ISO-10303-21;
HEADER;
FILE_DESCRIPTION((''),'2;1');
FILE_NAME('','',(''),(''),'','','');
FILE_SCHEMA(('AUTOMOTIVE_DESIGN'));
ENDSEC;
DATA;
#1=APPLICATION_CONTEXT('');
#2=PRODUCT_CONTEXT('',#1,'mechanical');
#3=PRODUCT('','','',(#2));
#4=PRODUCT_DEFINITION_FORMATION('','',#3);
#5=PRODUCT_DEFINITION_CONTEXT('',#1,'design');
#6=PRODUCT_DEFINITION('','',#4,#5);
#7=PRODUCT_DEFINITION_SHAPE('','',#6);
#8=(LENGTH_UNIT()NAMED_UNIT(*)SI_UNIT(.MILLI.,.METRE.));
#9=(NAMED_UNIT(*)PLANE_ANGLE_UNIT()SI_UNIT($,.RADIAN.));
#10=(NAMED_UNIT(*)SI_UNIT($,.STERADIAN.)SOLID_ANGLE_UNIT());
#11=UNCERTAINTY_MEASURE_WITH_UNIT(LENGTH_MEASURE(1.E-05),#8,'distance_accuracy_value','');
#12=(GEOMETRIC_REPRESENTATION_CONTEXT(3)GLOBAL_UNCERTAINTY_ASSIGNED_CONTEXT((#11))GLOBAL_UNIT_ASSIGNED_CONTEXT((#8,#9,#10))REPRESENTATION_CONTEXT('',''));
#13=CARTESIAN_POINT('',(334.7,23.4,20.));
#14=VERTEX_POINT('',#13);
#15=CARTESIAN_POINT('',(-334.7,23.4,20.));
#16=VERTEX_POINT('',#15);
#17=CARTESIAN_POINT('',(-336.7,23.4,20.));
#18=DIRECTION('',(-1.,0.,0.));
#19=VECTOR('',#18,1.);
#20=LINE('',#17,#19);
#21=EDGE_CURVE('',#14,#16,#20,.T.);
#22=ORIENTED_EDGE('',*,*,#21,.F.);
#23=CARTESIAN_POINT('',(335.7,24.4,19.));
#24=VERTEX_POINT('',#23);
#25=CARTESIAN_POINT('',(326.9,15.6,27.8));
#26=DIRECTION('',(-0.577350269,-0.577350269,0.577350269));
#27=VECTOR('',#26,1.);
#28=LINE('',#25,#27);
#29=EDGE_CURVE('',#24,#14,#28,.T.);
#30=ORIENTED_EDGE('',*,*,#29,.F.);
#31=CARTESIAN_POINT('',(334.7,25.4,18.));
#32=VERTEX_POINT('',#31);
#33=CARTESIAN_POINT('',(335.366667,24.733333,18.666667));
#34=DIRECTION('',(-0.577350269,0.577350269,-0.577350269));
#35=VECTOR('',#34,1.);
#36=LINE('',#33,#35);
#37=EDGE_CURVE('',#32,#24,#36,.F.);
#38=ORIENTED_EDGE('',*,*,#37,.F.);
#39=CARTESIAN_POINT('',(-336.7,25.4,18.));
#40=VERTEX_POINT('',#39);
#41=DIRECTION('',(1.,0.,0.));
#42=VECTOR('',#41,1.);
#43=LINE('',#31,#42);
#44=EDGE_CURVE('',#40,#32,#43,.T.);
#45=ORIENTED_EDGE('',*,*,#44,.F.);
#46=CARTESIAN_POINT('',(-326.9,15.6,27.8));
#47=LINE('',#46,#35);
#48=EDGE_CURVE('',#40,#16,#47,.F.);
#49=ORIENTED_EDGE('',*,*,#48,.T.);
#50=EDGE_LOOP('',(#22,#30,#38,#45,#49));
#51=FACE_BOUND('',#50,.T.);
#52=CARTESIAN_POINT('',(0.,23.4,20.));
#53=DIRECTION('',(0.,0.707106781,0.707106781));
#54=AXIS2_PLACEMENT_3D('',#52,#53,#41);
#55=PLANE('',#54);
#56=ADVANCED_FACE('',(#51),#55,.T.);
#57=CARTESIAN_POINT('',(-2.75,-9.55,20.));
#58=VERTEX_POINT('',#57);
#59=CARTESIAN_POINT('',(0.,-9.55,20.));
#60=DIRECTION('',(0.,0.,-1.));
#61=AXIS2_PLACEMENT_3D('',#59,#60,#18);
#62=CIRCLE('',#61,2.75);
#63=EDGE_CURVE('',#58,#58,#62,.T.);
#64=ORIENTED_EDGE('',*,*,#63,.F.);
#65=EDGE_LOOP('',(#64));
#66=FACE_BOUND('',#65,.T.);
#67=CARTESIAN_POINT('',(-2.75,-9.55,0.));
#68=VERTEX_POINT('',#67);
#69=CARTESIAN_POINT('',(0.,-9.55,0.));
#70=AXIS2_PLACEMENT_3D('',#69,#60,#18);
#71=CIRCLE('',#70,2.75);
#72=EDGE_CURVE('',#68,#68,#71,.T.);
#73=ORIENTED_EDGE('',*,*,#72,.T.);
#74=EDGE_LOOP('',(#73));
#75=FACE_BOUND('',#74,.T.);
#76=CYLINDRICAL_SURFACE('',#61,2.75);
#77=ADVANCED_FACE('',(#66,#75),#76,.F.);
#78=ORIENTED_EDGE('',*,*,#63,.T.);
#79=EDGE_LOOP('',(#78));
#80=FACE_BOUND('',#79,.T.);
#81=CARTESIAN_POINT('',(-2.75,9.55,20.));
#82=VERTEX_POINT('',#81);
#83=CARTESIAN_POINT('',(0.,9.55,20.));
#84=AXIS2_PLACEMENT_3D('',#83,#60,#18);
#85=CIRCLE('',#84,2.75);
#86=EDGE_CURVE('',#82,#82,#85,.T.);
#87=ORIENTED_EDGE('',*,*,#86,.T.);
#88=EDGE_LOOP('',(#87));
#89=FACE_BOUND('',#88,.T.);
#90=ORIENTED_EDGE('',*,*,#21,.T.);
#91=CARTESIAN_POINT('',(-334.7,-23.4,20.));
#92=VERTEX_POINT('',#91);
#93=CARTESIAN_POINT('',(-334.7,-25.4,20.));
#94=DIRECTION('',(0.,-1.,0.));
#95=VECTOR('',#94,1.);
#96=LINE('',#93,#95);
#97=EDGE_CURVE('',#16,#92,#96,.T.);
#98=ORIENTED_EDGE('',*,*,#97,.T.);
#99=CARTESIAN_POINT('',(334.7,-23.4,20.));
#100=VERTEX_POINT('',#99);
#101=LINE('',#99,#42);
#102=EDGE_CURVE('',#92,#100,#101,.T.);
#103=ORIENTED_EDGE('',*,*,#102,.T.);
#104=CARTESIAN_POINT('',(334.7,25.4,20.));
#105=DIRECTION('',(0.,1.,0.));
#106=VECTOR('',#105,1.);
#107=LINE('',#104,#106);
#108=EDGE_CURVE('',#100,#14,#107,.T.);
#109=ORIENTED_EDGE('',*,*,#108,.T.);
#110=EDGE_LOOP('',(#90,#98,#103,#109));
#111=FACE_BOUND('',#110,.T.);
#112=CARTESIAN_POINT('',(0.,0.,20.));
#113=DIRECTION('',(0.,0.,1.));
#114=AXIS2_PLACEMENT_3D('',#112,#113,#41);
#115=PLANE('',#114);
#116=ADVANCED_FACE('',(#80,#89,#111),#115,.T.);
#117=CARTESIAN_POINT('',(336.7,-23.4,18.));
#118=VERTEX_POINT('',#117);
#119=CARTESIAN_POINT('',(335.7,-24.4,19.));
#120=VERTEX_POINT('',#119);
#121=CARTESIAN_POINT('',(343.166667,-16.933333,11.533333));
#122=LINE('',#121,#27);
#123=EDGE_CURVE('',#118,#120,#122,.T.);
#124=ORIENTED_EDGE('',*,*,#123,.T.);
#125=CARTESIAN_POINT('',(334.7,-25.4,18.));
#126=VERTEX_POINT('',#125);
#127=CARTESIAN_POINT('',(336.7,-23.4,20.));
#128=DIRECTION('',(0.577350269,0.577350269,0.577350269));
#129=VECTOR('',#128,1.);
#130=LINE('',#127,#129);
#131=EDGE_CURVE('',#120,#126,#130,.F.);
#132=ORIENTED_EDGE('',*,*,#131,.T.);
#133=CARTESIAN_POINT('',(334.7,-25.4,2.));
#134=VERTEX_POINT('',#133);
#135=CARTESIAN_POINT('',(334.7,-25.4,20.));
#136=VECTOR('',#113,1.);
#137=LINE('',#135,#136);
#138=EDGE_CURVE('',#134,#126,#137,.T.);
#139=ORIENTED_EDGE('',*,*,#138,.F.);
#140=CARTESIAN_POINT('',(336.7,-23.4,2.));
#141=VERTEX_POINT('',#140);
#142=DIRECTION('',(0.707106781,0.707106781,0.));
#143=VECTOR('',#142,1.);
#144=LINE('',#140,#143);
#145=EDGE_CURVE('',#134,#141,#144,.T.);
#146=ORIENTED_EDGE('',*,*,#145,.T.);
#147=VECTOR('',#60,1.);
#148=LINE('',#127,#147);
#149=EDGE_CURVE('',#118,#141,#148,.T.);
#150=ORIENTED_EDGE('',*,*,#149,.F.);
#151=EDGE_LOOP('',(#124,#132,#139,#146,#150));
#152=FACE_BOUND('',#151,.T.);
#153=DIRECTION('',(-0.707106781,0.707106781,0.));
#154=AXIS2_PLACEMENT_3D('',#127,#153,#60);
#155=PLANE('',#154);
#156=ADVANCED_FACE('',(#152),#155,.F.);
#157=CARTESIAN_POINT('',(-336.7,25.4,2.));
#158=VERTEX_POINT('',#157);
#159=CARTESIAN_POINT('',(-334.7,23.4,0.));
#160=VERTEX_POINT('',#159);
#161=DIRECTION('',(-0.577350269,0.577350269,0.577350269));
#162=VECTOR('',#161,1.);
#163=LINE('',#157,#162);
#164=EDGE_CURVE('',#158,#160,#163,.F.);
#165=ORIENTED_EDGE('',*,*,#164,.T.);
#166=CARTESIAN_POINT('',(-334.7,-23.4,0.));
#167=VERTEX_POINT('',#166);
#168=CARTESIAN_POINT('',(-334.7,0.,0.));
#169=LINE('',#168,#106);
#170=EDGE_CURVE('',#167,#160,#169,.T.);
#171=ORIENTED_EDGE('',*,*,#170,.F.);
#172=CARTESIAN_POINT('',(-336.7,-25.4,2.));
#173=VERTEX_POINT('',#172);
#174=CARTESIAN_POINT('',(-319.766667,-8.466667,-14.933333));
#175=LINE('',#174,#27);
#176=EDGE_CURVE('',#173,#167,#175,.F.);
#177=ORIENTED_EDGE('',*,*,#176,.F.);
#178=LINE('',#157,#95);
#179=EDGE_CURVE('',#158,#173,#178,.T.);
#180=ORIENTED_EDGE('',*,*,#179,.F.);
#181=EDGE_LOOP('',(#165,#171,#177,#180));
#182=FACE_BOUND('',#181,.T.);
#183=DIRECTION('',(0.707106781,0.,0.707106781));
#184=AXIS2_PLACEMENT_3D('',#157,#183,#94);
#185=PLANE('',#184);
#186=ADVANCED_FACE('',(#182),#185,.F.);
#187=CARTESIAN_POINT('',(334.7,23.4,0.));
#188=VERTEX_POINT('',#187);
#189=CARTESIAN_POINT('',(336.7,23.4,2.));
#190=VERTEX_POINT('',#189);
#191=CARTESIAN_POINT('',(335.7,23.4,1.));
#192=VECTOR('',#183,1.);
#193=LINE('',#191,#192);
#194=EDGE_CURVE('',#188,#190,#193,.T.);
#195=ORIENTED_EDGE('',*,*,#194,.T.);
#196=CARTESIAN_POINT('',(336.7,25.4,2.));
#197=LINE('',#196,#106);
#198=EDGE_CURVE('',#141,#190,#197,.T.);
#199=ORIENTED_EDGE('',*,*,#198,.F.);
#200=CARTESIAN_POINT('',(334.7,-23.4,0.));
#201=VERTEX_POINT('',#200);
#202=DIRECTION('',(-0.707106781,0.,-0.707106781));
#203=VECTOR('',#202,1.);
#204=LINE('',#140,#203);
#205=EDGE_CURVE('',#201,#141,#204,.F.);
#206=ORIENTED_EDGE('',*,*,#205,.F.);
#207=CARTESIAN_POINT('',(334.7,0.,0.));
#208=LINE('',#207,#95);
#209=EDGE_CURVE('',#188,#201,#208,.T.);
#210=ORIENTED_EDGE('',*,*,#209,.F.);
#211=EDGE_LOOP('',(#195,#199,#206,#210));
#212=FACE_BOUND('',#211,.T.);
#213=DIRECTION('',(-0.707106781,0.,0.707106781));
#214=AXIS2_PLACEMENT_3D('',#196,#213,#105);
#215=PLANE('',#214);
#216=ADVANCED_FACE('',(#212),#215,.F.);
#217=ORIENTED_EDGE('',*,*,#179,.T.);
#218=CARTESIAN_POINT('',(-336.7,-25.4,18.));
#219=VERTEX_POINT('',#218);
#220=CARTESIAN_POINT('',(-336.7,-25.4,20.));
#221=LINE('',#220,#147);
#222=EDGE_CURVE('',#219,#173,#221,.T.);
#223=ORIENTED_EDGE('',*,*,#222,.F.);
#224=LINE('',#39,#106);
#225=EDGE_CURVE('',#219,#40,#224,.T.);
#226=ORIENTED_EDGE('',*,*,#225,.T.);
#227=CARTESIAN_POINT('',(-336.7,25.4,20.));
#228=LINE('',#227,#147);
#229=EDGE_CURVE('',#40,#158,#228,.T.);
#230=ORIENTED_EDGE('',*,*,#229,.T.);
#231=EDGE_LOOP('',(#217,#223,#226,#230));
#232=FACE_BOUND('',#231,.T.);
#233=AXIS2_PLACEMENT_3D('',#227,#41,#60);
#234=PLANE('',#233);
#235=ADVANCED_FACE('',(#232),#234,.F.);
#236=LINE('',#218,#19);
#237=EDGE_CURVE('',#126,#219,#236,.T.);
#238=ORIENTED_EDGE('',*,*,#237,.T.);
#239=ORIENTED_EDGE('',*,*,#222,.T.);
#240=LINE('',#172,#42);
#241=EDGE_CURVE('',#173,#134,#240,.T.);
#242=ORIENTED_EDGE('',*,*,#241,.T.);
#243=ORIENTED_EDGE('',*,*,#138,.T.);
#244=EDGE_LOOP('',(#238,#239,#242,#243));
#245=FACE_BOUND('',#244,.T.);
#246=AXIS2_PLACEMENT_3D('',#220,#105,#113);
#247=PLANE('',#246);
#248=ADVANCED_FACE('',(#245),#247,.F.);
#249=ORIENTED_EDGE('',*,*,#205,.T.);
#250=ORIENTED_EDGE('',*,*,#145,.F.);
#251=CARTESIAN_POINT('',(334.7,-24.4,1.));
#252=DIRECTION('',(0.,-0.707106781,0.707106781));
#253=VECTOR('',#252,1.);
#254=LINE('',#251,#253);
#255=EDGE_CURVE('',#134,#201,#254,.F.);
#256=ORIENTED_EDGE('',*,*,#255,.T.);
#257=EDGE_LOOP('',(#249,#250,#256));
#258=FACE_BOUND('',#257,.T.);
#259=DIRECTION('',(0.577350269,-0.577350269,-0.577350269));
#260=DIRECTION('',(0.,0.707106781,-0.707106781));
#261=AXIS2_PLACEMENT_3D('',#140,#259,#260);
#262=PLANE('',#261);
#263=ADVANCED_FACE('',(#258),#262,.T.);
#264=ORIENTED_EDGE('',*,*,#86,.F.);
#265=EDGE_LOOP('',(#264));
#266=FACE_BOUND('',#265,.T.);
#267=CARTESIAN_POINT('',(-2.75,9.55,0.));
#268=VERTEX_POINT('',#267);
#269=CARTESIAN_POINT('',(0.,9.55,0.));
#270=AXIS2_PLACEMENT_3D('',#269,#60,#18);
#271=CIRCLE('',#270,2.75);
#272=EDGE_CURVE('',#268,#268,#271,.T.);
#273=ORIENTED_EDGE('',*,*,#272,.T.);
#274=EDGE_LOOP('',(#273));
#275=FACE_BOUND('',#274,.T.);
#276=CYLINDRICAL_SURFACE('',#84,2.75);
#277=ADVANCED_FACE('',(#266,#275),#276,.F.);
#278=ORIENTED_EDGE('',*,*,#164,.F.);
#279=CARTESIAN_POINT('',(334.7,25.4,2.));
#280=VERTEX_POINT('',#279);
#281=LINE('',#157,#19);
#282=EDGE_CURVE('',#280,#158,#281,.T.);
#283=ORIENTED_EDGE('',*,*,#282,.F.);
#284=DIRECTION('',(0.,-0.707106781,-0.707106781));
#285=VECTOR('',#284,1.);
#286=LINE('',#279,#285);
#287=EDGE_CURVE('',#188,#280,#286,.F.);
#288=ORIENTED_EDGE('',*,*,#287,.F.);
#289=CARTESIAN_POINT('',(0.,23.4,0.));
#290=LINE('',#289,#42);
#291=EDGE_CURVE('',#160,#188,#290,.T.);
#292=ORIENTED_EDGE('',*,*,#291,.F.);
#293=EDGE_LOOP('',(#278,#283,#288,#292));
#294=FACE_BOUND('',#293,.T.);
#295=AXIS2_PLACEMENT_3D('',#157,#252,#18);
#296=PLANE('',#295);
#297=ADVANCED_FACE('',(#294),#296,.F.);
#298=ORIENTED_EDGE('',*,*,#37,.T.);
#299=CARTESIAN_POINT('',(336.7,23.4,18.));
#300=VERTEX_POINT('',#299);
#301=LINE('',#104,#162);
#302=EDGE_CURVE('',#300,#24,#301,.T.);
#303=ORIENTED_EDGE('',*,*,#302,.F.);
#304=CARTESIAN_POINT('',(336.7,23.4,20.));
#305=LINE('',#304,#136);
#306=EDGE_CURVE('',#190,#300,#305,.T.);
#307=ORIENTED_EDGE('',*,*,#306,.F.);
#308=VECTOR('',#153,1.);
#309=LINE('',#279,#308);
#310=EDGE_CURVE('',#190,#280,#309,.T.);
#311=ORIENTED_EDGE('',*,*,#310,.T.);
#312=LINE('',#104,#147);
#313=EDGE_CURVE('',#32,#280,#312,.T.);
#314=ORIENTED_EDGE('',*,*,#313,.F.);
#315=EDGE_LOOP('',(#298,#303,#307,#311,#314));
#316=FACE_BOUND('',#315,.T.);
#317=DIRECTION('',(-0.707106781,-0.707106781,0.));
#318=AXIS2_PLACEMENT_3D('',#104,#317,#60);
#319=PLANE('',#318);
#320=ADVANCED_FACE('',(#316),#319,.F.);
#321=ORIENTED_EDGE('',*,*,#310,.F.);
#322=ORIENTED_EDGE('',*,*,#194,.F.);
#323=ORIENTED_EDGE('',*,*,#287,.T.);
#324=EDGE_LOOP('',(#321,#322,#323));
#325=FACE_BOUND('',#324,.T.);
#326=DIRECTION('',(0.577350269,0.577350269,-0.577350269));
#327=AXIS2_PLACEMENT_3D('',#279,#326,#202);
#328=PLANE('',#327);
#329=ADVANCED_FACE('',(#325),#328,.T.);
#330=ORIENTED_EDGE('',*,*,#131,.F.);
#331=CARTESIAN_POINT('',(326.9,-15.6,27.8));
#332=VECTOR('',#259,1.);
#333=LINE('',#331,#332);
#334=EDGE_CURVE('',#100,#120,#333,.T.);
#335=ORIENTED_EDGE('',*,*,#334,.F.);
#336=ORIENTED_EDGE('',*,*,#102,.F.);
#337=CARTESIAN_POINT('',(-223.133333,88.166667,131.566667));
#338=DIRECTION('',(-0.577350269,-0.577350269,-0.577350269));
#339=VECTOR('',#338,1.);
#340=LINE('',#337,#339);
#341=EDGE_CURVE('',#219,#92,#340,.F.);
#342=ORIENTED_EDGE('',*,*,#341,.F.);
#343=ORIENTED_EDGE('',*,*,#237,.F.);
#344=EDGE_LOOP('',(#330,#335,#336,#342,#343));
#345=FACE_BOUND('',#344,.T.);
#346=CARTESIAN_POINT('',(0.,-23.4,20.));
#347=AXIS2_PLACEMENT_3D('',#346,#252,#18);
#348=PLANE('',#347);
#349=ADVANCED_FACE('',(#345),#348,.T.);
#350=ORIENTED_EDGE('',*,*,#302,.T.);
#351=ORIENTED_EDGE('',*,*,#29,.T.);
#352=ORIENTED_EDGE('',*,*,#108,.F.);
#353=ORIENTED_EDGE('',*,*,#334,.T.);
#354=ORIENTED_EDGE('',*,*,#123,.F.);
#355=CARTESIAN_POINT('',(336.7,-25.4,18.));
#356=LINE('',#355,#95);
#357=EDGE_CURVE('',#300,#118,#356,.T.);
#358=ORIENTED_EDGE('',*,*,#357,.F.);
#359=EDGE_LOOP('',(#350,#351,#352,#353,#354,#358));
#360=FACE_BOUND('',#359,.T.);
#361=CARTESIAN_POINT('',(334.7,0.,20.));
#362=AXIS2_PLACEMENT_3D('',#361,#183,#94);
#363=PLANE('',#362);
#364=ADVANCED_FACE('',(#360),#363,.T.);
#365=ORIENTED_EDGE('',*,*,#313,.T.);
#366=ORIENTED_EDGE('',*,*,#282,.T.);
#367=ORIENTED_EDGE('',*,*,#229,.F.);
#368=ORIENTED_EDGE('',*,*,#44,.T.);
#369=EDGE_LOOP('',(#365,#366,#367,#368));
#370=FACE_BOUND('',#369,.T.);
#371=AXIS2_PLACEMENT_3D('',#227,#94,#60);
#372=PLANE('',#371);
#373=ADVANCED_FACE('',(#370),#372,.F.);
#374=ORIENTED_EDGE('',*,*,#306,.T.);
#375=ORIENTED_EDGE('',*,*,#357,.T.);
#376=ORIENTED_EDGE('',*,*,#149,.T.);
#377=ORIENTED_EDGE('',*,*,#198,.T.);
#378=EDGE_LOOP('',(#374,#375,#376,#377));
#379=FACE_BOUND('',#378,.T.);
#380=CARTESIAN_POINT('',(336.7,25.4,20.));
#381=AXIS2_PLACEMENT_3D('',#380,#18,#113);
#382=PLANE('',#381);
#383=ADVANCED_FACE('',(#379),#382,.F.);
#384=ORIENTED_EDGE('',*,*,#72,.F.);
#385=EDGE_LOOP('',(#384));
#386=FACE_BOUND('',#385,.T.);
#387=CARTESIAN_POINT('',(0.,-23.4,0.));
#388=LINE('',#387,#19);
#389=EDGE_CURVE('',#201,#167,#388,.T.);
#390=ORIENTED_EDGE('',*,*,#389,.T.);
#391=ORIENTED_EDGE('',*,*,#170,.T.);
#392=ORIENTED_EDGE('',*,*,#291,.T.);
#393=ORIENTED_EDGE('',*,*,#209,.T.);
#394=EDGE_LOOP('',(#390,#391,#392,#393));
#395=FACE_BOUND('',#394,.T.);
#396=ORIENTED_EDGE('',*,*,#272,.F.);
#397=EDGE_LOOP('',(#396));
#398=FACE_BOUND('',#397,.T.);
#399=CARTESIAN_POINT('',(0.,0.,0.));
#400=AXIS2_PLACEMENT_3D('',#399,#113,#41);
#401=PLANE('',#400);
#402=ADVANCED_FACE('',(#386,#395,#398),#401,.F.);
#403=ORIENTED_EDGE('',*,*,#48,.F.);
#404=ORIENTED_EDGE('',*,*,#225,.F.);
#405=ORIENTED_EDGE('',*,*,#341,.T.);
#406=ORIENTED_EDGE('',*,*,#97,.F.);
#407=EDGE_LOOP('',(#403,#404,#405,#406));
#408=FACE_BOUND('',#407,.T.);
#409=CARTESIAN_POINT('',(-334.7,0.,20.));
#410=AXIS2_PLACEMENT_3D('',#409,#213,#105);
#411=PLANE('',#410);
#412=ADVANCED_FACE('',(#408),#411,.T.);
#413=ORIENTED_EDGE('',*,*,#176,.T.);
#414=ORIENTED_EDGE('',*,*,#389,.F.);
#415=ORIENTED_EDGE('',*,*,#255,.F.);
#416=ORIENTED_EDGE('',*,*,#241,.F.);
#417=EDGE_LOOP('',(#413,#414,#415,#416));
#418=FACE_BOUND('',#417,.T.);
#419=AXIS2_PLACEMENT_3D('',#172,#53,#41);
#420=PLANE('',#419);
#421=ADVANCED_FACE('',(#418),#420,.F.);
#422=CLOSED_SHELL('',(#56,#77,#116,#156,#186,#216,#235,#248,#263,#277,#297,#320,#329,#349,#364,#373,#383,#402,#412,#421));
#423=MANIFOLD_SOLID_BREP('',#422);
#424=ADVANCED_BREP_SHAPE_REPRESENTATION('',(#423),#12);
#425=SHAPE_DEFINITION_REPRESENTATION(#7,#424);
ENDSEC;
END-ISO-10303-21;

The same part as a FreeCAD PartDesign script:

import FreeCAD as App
import Part
import Sketcher
from FreeCAD import Vector


def edges_at(feature, points):
    """Names of the edges that pass closest to the given points."""
    edges = feature.Shape.Edges
    near = lambda p: min(range(len(edges)), key=lambda i: edges[i].distToShape(Part.Vertex(*p))[0])
    return sorted({f"Edge{near(p) + 1}" for p in points})

doc = App.newDocument("Part")
body = doc.addObject("PartDesign::Body", "Body")

sketch1 = body.newObject("Sketcher::SketchObject", "Sketch")
sketch1.AttachmentSupport = (doc.getObject("XY_Plane"), [""])
sketch1.MapMode = "FlatFace"
sketch1.addGeometry([
    Part.LineSegment(Vector(-337, 25, 0), Vector(-337, -25, 0)),
    Part.LineSegment(Vector(-337, -25, 0), Vector(337, -25, 0)),
    Part.LineSegment(Vector(337, -25, 0), Vector(337, 25, 0)),
    Part.LineSegment(Vector(337, 25, 0), Vector(-337, 25, 0)),
], False)
sketch1.addConstraint([
    Sketcher.Constraint("Coincident", 0, 2, 1, 1),
    Sketcher.Constraint("Coincident", 1, 2, 2, 1),
    Sketcher.Constraint("Coincident", 2, 2, 3, 1),
    Sketcher.Constraint("Coincident", 3, 2, 0, 1),
    Sketcher.Constraint("Vertical", 0),
    Sketcher.Constraint("Horizontal", 1),
    Sketcher.Constraint("Vertical", 2),
    Sketcher.Constraint("Horizontal", 3),
    Sketcher.Constraint("Symmetric", 0, 2, 2, 2, -1, 1),
    Sketcher.Constraint("DistanceX", 1, 1, 1, 2, 673.4),
    Sketcher.Constraint("DistanceY", 0, 2, 0, 1, 50.8),
])
pad1 = body.newObject("PartDesign::Pad", "Pad")
pad1.Profile = sketch1
pad1.Length = 20

sketch2 = body.newObject("Sketcher::SketchObject", "Sketch001")
sketch2.AttachmentSupport = (doc.getObject("XY_Plane"), [""])
sketch2.MapMode = "FlatFace"
sketch2.addGeometry([
    Part.Circle(Vector(0, 9.6, 0), Vector(0, 0, 1), 2.8),
    Part.Circle(Vector(0, -9.6, 0), Vector(0, 0, 1), 2.8),
], False)
sketch2.addConstraint([
    Sketcher.Constraint("Equal", 0, 1),
    Sketcher.Constraint("Symmetric", 0, 3, 1, 3, -1, 1),
    Sketcher.Constraint("PointOnObject", 0, 3, -2),
    Sketcher.Constraint("Diameter", 0, 5.5),
    Sketcher.Constraint("DistanceY", 1, 3, 0, 3, 19.1),
])
pocket1 = body.newObject("PartDesign::Pocket", "Pocket")
pocket1.Profile = sketch2
pocket1.Type = "ThroughAll"
pocket1.Reversed = True
doc.recompute()

chamfer = body.newObject("PartDesign::Chamfer", "Chamfer")
chamfer.Base = (pocket1, edges_at(pocket1, [
    (336.7, 0, 20),
    (0, -25.4, 0),
    (-336.7, 0, 0),
    (0, 25.4, 0),
    (336.7, 0, 0),
    (336.7, -25.4, 10),
    (336.7, 25.4, 10),
]))
chamfer.Size = 2
doc.recompute()

chamfer2 = body.newObject("PartDesign::Chamfer", "Chamfer001")
chamfer2.Base = (chamfer, edges_at(chamfer, [(-336.7, 0, 20), (-1, -25.4, 20), (-1, 25.4, 20)]))
chamfer2.Size = 2

doc.recompute()
